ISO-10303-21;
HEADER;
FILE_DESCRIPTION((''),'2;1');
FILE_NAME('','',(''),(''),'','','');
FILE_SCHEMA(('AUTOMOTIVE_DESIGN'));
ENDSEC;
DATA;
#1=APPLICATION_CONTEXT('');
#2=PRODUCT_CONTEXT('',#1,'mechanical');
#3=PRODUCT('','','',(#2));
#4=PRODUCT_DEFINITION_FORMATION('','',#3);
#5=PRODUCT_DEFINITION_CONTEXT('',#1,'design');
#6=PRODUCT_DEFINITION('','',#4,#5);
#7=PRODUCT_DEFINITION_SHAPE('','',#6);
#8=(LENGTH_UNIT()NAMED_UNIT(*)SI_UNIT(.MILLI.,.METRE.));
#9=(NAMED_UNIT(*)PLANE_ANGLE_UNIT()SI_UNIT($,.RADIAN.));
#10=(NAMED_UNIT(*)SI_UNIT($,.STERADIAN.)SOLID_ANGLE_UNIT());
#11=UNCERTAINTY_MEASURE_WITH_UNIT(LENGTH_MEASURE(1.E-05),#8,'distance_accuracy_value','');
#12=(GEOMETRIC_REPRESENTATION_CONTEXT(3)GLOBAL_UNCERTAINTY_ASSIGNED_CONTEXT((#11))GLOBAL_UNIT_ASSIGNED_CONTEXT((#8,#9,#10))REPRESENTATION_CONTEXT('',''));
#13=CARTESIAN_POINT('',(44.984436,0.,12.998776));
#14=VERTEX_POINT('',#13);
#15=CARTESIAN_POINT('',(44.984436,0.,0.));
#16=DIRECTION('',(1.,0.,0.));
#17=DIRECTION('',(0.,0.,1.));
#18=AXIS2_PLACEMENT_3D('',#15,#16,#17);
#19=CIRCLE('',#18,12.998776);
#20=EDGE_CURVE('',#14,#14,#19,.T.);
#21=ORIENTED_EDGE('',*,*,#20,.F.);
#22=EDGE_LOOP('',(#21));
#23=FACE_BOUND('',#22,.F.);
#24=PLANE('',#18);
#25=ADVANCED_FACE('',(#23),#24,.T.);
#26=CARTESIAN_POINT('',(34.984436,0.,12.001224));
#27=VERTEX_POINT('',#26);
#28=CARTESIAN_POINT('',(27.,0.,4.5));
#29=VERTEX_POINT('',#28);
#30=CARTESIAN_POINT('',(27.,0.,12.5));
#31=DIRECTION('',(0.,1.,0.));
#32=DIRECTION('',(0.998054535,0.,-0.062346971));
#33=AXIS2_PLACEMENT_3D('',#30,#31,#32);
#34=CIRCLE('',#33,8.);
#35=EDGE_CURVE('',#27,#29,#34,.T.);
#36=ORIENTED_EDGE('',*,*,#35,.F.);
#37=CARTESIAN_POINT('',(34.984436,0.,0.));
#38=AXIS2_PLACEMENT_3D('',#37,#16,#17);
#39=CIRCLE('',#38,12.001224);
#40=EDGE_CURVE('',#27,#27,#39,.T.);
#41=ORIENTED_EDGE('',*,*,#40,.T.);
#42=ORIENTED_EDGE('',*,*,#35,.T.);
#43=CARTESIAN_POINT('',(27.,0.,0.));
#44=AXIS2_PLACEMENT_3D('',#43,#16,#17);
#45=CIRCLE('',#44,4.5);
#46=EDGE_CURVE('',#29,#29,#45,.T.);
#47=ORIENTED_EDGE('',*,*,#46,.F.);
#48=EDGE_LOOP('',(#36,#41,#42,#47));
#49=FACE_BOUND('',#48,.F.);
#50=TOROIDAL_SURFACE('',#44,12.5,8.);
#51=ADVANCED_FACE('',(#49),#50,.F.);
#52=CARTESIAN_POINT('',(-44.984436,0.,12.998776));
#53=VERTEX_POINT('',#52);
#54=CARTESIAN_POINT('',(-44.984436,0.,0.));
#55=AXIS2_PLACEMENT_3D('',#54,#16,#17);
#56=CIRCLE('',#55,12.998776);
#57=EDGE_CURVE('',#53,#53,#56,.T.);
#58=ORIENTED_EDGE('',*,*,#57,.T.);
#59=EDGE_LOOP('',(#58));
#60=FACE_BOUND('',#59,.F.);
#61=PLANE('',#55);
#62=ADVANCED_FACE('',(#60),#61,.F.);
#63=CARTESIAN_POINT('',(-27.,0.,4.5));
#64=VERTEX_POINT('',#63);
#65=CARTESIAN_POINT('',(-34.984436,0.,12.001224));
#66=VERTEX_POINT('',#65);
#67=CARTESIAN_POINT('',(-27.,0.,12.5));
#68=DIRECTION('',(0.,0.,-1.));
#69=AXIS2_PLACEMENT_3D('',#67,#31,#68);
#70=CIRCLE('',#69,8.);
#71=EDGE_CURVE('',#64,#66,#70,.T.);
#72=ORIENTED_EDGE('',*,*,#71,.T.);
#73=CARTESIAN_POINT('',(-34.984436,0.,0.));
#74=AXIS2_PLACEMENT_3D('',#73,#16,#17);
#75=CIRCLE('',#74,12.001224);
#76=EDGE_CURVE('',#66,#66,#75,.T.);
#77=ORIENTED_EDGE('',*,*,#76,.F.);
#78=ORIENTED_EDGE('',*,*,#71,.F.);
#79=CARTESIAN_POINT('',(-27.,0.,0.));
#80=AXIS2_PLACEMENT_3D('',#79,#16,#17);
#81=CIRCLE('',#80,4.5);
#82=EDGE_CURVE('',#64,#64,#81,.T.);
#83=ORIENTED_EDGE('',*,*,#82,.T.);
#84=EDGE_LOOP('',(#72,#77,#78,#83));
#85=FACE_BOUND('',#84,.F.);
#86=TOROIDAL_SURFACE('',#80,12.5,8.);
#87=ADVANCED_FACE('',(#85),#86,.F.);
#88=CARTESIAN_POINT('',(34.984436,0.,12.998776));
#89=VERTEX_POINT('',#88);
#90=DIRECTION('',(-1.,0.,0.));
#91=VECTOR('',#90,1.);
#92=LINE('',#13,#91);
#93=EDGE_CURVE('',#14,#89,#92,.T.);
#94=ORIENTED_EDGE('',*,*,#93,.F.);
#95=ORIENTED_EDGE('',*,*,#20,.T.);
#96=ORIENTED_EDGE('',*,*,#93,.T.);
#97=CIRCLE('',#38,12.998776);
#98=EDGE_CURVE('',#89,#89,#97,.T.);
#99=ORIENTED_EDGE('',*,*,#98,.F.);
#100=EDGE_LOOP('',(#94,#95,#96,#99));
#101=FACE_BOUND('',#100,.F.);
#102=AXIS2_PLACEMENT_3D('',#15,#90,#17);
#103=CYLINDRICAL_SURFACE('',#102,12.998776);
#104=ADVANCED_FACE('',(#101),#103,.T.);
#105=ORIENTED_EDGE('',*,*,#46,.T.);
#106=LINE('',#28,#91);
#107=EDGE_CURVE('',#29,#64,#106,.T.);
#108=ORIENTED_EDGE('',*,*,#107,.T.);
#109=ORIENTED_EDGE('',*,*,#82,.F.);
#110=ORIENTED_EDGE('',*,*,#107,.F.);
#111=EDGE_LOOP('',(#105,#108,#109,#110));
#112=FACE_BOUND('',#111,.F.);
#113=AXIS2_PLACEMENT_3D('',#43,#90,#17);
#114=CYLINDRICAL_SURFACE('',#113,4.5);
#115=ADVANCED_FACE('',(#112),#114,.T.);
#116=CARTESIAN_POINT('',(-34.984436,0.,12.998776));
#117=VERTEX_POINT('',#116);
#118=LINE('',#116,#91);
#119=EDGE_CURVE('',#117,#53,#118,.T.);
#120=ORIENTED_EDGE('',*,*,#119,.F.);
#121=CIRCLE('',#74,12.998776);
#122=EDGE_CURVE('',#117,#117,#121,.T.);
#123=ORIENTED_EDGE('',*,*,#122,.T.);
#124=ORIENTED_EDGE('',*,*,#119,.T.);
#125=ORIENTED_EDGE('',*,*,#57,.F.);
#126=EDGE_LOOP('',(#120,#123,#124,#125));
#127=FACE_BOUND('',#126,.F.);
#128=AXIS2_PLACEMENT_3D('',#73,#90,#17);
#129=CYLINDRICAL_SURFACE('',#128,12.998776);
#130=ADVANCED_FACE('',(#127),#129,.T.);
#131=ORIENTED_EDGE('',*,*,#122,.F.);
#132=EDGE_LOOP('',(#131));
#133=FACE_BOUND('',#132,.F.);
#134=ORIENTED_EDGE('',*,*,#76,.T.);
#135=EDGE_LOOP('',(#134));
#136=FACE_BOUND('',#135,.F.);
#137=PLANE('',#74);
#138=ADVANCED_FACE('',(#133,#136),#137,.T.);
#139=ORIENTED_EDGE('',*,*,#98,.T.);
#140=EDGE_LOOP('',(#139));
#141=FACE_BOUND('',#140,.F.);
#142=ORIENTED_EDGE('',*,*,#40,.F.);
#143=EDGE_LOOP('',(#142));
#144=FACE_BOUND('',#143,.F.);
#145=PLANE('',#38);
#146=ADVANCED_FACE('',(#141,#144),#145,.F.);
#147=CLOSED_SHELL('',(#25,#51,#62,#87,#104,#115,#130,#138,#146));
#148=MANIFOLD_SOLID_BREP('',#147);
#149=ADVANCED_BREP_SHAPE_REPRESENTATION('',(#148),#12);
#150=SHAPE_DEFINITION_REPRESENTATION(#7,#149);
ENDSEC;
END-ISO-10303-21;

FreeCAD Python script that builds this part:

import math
import FreeCAD as App
import Part
import Sketcher
from FreeCAD import Vector

doc = App.newDocument("Part")
body = doc.addObject("PartDesign::Body", "Body")

# Sketch on XZ plane
sketch1 = body.newObject("Sketcher::SketchObject", "Sketch")
sketch1.AttachmentSupport = (doc.getObject("XZ_Plane"), [""])
sketch1.MapMode = "FlatFace"
sketch1.addGeometry([
    Part.ArcOfCircle(Part.Circle(Vector(27, 12.5, 0), Vector(0, 0, 1), 8), math.radians(-90), math.radians(-4)),  # 0
    Part.LineSegment(Vector(27, 4.5, 0), Vector(-27, 4.5, 0)),  # 1
    Part.ArcOfCircle(Part.Circle(Vector(-27, 12.5, 0), Vector(0, 0, 1), 8), math.radians(-176), math.radians(-90)),  # 2
    Part.LineSegment(Vector(-35, 12, 0), Vector(-35, 13, 0)),  # 3
    Part.LineSegment(Vector(-35, 13, 0), Vector(-45, 13, 0)),  # 4
    Part.LineSegment(Vector(-45, 13, 0), Vector(-45, 0, 0)),  # 5
    Part.LineSegment(Vector(-45, 0, 0), Vector(45, 0, 0)),  # 6
    Part.LineSegment(Vector(45, 0, 0), Vector(45, 13, 0)),  # 7
    Part.LineSegment(Vector(45, 13, 0), Vector(35, 13, 0)),  # 8
    Part.LineSegment(Vector(35, 13, 0), Vector(35, 12, 0)),  # 9
], False)
sketch1.addConstraint([
    Sketcher.Constraint("Tangent", 0, 1, 1, 1),
    Sketcher.Constraint("Tangent", 1, 2, 2, 2),
    Sketcher.Constraint("Coincident", 2, 1, 3, 1),
    Sketcher.Constraint("Coincident", 3, 2, 4, 1),
    Sketcher.Constraint("Coincident", 4, 2, 5, 1),
    Sketcher.Constraint("Coincident", 5, 2, 6, 1),
    Sketcher.Constraint("Coincident", 6, 2, 7, 1),
    Sketcher.Constraint("Coincident", 7, 2, 8, 1),
    Sketcher.Constraint("Coincident", 8, 2, 9, 1),
    Sketcher.Constraint("Coincident", 9, 2, 0, 2),
    Sketcher.Constraint("Horizontal", 1),
    Sketcher.Constraint("Vertical", 3),
    Sketcher.Constraint("Horizontal", 4),
    Sketcher.Constraint("Vertical", 5),
    Sketcher.Constraint("Horizontal", 6),
    Sketcher.Constraint("Vertical", 7),
    Sketcher.Constraint("Horizontal", 8),
    Sketcher.Constraint("Vertical", 9),
    Sketcher.Constraint("Equal", 0, 2),
    Sketcher.Constraint("Symmetric", 5, 2, 6, 2, -1, 1),
    Sketcher.Constraint("Symmetric", 3, 2, 8, 2, -2),
    Sketcher.Constraint("Horizontal", 2, 1, 9, 2),
    Sketcher.Constraint("Radius", 0, 8.0),
    Sketcher.Constraint("DistanceX", 1, 2, 1, 1, 54.0),
    Sketcher.Constraint("DistanceX", 4, 2, 4, 1, 10.0),
    Sketcher.Constraint("DistanceY", -1, 1, 0, 3, 12.5),
    Sketcher.Constraint("DistanceY", 3, 1, 3, 2, 0.997552),
    Sketcher.Constraint("DistanceX", 6, 1, 6, 2, 89.968873),
])
revolution = body.newObject("PartDesign::Revolution", "Revolution")
revolution.Profile = sketch1
revolution.ReferenceAxis = (sketch1, ["H_Axis"])
revolution.Angle = 360

doc.recompute()
